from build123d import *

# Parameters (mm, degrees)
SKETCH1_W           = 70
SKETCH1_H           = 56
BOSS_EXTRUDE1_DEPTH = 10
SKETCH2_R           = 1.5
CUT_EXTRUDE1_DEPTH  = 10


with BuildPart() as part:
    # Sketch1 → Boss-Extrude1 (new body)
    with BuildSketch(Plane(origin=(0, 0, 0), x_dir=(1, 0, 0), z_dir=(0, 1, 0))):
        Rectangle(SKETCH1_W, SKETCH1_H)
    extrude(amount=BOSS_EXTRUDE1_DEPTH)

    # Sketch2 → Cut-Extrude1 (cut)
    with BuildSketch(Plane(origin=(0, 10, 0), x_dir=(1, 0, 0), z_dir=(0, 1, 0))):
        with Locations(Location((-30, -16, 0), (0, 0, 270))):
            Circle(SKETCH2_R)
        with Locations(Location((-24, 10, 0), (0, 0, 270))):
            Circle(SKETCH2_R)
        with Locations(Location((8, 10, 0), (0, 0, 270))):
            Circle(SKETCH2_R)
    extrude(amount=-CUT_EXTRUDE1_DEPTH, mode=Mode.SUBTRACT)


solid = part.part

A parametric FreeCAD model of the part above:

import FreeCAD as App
import Part
import Sketcher
from FreeCAD import Vector
Q = App.Units.Quantity

doc = App.newDocument("Part")
params = doc.addObject("Spreadsheet::Sheet", "Params")
for row, (alias, value) in enumerate([
    ("sketch1_width", "70 mm"),
    ("sketch1_height", "56 mm"),
    ("pad1_length", "10 mm"),
    ("sketch2_diameter", "3 mm"),
    ("pocket1_length", "10 mm"),
], start=1):
    params.set(f"A{row}", alias)
    params.set(f"B{row}", "=" + value)
    params.setAlias(f"B{row}", alias)

body = doc.addObject("PartDesign::Body", "Body")

sketch1 = body.newObject("Sketcher::SketchObject", "Sketch")
sketch1.AttachmentSupport = (doc.getObject("XZ_Plane"), [""])
sketch1.MapMode = "FlatFace"
sketch1.addGeometry(Part.LineSegment(Vector(-35, -28, 0), Vector(-35, 28, 0)), False)
sketch1.addGeometry(Part.LineSegment(Vector(-35, 28, 0), Vector(35, 28, 0)), False)
sketch1.addGeometry(Part.LineSegment(Vector(35, 28, 0), Vector(35, -28, 0)), False)
sketch1.addGeometry(Part.LineSegment(Vector(35, -28, 0), Vector(-35, -28, 0)), False)
sketch1.addConstraint(Sketcher.Constraint("Coincident", 0, 2, 1, 1))
sketch1.addConstraint(Sketcher.Constraint("Coincident", 1, 2, 2, 1))
sketch1.addConstraint(Sketcher.Constraint("Coincident", 2, 2, 3, 1))
sketch1.addConstraint(Sketcher.Constraint("Coincident", 3, 2, 0, 1))
sketch1.addConstraint(Sketcher.Constraint("Vertical", 0))
sketch1.addConstraint(Sketcher.Constraint("Horizontal", 1))
sketch1.addConstraint(Sketcher.Constraint("Vertical", 2))
sketch1.addConstraint(Sketcher.Constraint("Horizontal", 3))
sketch1.addConstraint(Sketcher.Constraint("Symmetric", 0, 2, 2, 2, -1, 1))
sketch1.addConstraint(Sketcher.Constraint("DistanceX", 1, 1, 1, 2, Q("70 mm")))
sketch1.addConstraint(Sketcher.Constraint("DistanceY", 0, 1, 0, 2, Q("56 mm")))
sketch1.setExpression("Constraints[9]", "Params.sketch1_width")
sketch1.setExpression("Constraints[10]", "Params.sketch1_height")
pad1 = body.newObject("PartDesign::Pad", "Pad")
pad1.Profile = sketch1
pad1.setExpression("Length", "Params.pad1_length")
pad1.Reversed = True

sketch2 = body.newObject("Sketcher::SketchObject", "Sketch001")
sketch2.AttachmentSupport = (doc.getObject("XZ_Plane"), [""])
sketch2.MapMode = "FlatFace"
sketch2.AttachmentOffset = App.Placement(Vector(0, 0, -10), App.Rotation())
sketch2.addGeometry(Part.Circle(Vector(-30, 16, 0), Vector(0, 0, 1), 1.5), False)
sketch2.addGeometry(Part.Circle(Vector(-24, -10, 0), Vector(0, 0, 1), 1.5), False)
sketch2.addGeometry(Part.Circle(Vector(8, -10, 0), Vector(0, 0, 1), 1.5), False)
sketch2.addConstraint(Sketcher.Constraint("Equal", 0, 1))
sketch2.addConstraint(Sketcher.Constraint("Equal", 1, 2))
sketch2.addConstraint(Sketcher.Constraint("Horizontal", 1, 3, 2, 3))
sketch2.addConstraint(Sketcher.Constraint("Diameter", 0, Q("3 mm")))
sketch2.addConstraint(Sketcher.Constraint("DistanceX", 0, 3, -1, 1, Q("30 mm")))
sketch2.addConstraint(Sketcher.Constraint("DistanceY", -1, 1, 0, 3, Q("16 mm")))
sketch2.addConstraint(Sketcher.Constraint("DistanceX", 1, 3, -1, 1, Q("24 mm")))
sketch2.addConstraint(Sketcher.Constraint("DistanceY", 1, 3, -1, 1, Q("10 mm")))
sketch2.addConstraint(Sketcher.Constraint("DistanceX", -1, 1, 2, 3, Q("8 mm")))
sketch2.setExpression("Constraints[3]", "Params.sketch2_diameter")
pocket1 = body.newObject("PartDesign::Pocket", "Pocket")
pocket1.Profile = sketch2
pocket1.setExpression("Length", "Params.pocket1_length")
pocket1.Reversed = True

doc.recompute()
